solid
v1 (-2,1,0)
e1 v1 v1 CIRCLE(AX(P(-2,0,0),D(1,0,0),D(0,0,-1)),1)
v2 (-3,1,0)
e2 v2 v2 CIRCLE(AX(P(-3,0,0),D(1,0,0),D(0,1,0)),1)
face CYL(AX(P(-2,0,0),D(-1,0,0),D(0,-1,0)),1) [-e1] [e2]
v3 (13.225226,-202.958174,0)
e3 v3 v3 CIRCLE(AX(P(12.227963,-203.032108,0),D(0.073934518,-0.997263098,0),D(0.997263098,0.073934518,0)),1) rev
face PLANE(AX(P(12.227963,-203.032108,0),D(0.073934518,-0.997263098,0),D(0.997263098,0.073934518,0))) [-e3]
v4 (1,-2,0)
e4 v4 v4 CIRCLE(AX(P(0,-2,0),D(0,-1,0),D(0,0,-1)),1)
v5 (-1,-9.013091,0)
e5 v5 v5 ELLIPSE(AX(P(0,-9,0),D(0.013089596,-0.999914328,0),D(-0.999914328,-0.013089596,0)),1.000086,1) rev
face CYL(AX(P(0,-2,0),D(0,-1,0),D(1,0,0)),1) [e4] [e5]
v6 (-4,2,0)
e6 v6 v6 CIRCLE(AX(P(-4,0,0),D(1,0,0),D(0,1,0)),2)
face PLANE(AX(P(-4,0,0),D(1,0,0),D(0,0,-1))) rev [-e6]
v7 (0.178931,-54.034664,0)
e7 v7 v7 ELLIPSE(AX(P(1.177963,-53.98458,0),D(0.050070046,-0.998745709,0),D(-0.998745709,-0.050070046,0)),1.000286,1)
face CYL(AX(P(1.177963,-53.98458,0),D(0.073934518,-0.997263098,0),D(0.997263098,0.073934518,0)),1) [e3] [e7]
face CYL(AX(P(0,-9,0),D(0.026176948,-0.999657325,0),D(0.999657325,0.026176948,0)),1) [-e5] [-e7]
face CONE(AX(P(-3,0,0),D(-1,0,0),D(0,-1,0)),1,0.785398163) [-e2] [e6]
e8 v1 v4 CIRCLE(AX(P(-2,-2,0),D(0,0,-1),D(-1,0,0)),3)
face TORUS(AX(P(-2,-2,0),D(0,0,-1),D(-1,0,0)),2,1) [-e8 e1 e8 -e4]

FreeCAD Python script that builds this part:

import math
import FreeCAD as App
import Part
import Sketcher
Q = App.Units.Quantity


def add_polygon(sketch, points):
    """Adds a closed chain of lines whose ends are joined by coincident constraints."""
    first, n = sketch.GeometryCount, len(points)
    for a, b in zip(points, points[1:] + points[:1]):
        sketch.addGeometry(Part.LineSegment(App.Vector(*a, 0), App.Vector(*b, 0)), False)
    for i in range(n):
        sketch.addConstraint(Sketcher.Constraint("Coincident", first + i, 2, first + (i + 1) % n, 1))

doc = App.newDocument("Part")
body = doc.addObject("PartDesign::Body", "Body")

# Sketch on YZ plane
sketch1 = body.newObject("Sketcher::SketchObject", "Sketch")
sketch1.AttachmentSupport = (doc.getObject("YZ_Plane"), [""])
sketch1.MapMode = "FlatFace"
sketch1.AttachmentOffset = App.Placement(App.Vector(0, 0, -4), App.Rotation())
sketch1.addGeometry(Part.Circle(App.Vector(0, 0, 0), App.Vector(0, 0, 1), 1), False)
sketch1.addConstraint([
    Sketcher.Constraint("Coincident", 0, 3, -1, 1),
    Sketcher.Constraint("Diameter", 0, Q("2 mm")),
])

# Sketch on XY plane
sketch2 = body.newObject("Sketcher::SketchObject", "Sketch001")
sketch2.AttachmentSupport = (doc.getObject("XY_Plane"), [""])
sketch2.MapMode = "FlatFace"
sketch2.addGeometry([
    Part.LineSegment(App.Vector(12.2, -203, 0), App.Vector(1.2, -54, 0)),  # 0
    Part.LineSegment(App.Vector(1.2, -54, 0), App.Vector(0, -9, 0)),  # 1
    Part.LineSegment(App.Vector(0, -9, 0), App.Vector(0, -2, 0)),  # 2
    Part.ArcOfCircle(Part.Circle(App.Vector(-2, -2, 0), App.Vector(0, 0, 1), 2), math.radians(0), math.radians(90)),  # 3
    Part.LineSegment(App.Vector(-2, 0, 0), App.Vector(-4, 0, 0)),  # 4
], False)
sketch2.addConstraint([
    Sketcher.Constraint("Coincident", 0, 2, 1, 1),
    Sketcher.Constraint("Coincident", 1, 2, 2, 1),
    Sketcher.Constraint("Tangent", 2, 2, 3, 1),
    Sketcher.Constraint("Tangent", 3, 2, 4, 1),
    Sketcher.Constraint("Vertical", 2),
    Sketcher.Constraint("Horizontal", 4),
    Sketcher.Constraint("PointOnObject", 1, 2, -2),
    Sketcher.Constraint("PointOnObject", 3, 2, -1),
    Sketcher.Constraint("Radius", 3, Q("2 mm")),
    Sketcher.Constraint("DistanceX", 4, 2, 4, 1, Q("2 mm")),
    Sketcher.Constraint("DistanceY", 2, 1, 2, 2, Q("7 mm")),
    Sketcher.Constraint("Distance", 1, Q("45 mm")),
    Sketcher.Constraint("Angle", 1, Q("91.5 deg")),
    Sketcher.Constraint("Angle", 0, Q("94.240005 deg")),
    Sketcher.Constraint("DistanceX", 0, 2, 0, 1, Q("11.05 mm")),
])
doc.recompute()

additivepipe = body.newObject("PartDesign::AdditivePipe", "AdditivePipe")
additivepipe.Profile = sketch1
additivepipe.Spine = (sketch2, ["Edge1", "Edge2", "Edge3", "Edge4", "Edge5"])
additivepipe.Transition = "Right corner"

# Sketch on XY plane
sketch3 = body.newObject("Sketcher::SketchObject", "Sketch002")
sketch3.AttachmentSupport = (doc.getObject("XY_Plane"), [""])
sketch3.MapMode = "FlatFace"
add_polygon(sketch3, [(-4, 2), (-4, 1), (-3, 1)])  # lines 0-2
sketch3.addConstraint([
    Sketcher.Constraint("Vertical", 0),
    Sketcher.Constraint("Horizontal", 1),
    Sketcher.Constraint("Equal", 1, 0),
    Sketcher.Constraint("DistanceX", 1, 1, 1, 2, Q("1 mm")),
    Sketcher.Constraint("DistanceX", 0, 2, -1, 1, Q("4 mm")),
    Sketcher.Constraint("DistanceY", -1, 1, 0, 2, Q("1 mm")),
])
revolution = body.newObject("PartDesign::Revolution", "Revolution")
revolution.Profile = sketch3
revolution.ReferenceAxis = (sketch3, ["H_Axis"])
revolution.Angle = 360

doc.recompute()
